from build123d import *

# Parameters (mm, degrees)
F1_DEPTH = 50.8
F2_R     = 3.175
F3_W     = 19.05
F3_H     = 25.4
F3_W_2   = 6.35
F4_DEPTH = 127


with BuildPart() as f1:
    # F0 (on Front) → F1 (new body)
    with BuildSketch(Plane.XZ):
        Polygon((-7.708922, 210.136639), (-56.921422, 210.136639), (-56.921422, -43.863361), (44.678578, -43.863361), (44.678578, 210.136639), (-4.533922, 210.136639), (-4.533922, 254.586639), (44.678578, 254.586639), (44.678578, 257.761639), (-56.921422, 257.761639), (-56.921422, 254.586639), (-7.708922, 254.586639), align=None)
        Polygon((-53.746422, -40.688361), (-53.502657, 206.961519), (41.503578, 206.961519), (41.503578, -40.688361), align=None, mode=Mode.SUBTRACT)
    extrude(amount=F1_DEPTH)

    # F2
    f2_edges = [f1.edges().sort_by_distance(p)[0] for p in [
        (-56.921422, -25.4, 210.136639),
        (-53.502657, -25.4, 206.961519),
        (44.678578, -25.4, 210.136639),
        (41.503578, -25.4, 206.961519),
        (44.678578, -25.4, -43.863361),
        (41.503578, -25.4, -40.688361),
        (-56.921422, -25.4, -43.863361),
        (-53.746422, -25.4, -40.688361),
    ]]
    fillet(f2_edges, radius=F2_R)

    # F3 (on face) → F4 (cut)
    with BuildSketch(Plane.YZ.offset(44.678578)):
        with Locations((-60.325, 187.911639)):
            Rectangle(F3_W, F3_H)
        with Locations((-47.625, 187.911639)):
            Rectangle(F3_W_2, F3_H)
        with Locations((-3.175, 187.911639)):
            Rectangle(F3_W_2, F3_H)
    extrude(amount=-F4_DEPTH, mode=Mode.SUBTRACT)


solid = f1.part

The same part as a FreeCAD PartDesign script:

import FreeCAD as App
import Part
import Sketcher

V = App.Vector
Q = App.Units.Quantity


def edges_at(feature, points):
    """Names of the edges that pass closest to the given points."""
    edges = feature.Shape.Edges
    near = lambda p: min(range(len(edges)), key=lambda i: edges[i].distToShape(Part.Vertex(*p))[0])
    return sorted({f"Edge{near(p) + 1}" for p in points})

doc = App.newDocument("Part")
body = doc.addObject("PartDesign::Body", "Body")

# Sketch on XZ plane
sketch1 = body.newObject("Sketcher::SketchObject", "Sketch")
sketch1.AttachmentSupport = (doc.getObject("XZ_Plane"), [""])
sketch1.MapMode = "FlatFace"
sketch1.addGeometry(Part.LineSegment(V(-7.7, 210.1, 0), V(-56.9, 210.1, 0)), False)
sketch1.addGeometry(Part.LineSegment(V(-56.9, 210.1, 0), V(-56.9, -43.9, 0)), False)
sketch1.addGeometry(Part.LineSegment(V(-56.9, -43.9, 0), V(44.7, -43.9, 0)), False)
sketch1.addGeometry(Part.LineSegment(V(44.7, -43.9, 0), V(44.7, 210.1, 0)), False)
sketch1.addGeometry(Part.LineSegment(V(44.7, 210.1, 0), V(-4.5, 210.1, 0)), False)
sketch1.addGeometry(Part.LineSegment(V(-4.5, 210.1, 0), V(-4.5, 254.6, 0)), False)
sketch1.addGeometry(Part.LineSegment(V(-4.5, 254.6, 0), V(44.7, 254.6, 0)), False)
sketch1.addGeometry(Part.LineSegment(V(44.7, 254.6, 0), V(44.7, 257.8, 0)), False)
sketch1.addGeometry(Part.LineSegment(V(44.7, 257.8, 0), V(-56.9, 257.8, 0)), False)
sketch1.addGeometry(Part.LineSegment(V(-56.9, 257.8, 0), V(-56.9, 254.6, 0)), False)
sketch1.addGeometry(Part.LineSegment(V(-56.9, 254.6, 0), V(-7.7, 254.6, 0)), False)
sketch1.addGeometry(Part.LineSegment(V(-7.7, 254.6, 0), V(-7.7, 210.1, 0)), False)
sketch1.addGeometry(Part.LineSegment(V(41.5, -40.7, 0), V(-53.7, -40.7, 0)), False)
sketch1.addGeometry(Part.LineSegment(V(-53.7, -40.7, 0), V(-53.5, 207, 0)), False)
sketch1.addGeometry(Part.LineSegment(V(-53.5, 207, 0), V(41.5, 207, 0)), False)
sketch1.addGeometry(Part.LineSegment(V(41.5, 207, 0), V(41.5, -40.7, 0)), False)
sketch1.addConstraint(Sketcher.Constraint("Coincident", 0, 2, 1, 1))
sketch1.addConstraint(Sketcher.Constraint("Coincident", 1, 2, 2, 1))
sketch1.addConstraint(Sketcher.Constraint("Coincident", 2, 2, 3, 1))
sketch1.addConstraint(Sketcher.Constraint("Coincident", 3, 2, 4, 1))
sketch1.addConstraint(Sketcher.Constraint("Coincident", 4, 2, 5, 1))
sketch1.addConstraint(Sketcher.Constraint("Coincident", 5, 2, 6, 1))
sketch1.addConstraint(Sketcher.Constraint("Coincident", 6, 2, 7, 1))
sketch1.addConstraint(Sketcher.Constraint("Coincident", 7, 2, 8, 1))
sketch1.addConstraint(Sketcher.Constraint("Coincident", 8, 2, 9, 1))
sketch1.addConstraint(Sketcher.Constraint("Coincident", 9, 2, 10, 1))
sketch1.addConstraint(Sketcher.Constraint("Coincident", 10, 2, 11, 1))
sketch1.addConstraint(Sketcher.Constraint("Coincident", 11, 2, 0, 1))
sketch1.addConstraint(Sketcher.Constraint("Coincident", 12, 2, 13, 1))
sketch1.addConstraint(Sketcher.Constraint("Coincident", 13, 2, 14, 1))
sketch1.addConstraint(Sketcher.Constraint("Coincident", 14, 2, 15, 1))
sketch1.addConstraint(Sketcher.Constraint("Coincident", 15, 2, 12, 1))
sketch1.addConstraint(Sketcher.Constraint("Horizontal", 0))
sketch1.addConstraint(Sketcher.Constraint("Vertical", 1))
sketch1.addConstraint(Sketcher.Constraint("Horizontal", 2))
sketch1.addConstraint(Sketcher.Constraint("Vertical", 3))
sketch1.addConstraint(Sketcher.Constraint("Horizontal", 4))
sketch1.addConstraint(Sketcher.Constraint("Vertical", 5))
sketch1.addConstraint(Sketcher.Constraint("Horizontal", 6))
sketch1.addConstraint(Sketcher.Constraint("Vertical", 7))
sketch1.addConstraint(Sketcher.Constraint("Horizontal", 8))
sketch1.addConstraint(Sketcher.Constraint("Vertical", 9))
sketch1.addConstraint(Sketcher.Constraint("Horizontal", 10))
sketch1.addConstraint(Sketcher.Constraint("Vertical", 11))
sketch1.addConstraint(Sketcher.Constraint("Horizontal", 12))
sketch1.addConstraint(Sketcher.Constraint("Horizontal", 14))
sketch1.addConstraint(Sketcher.Constraint("Vertical", 15))
sketch1.addConstraint(Sketcher.Constraint("Horizontal", 0, 2, 3, 2))
sketch1.addConstraint(Sketcher.Constraint("Horizontal", 6, 2, 9, 2))
sketch1.addConstraint(Sketcher.Constraint("Vertical", 3, 2, 6, 2))
sketch1.addConstraint(Sketcher.Constraint("Vertical", 1, 2, 8, 2))
sketch1.addConstraint(Sketcher.Constraint("Equal", 0, 4))
sketch1.addConstraint(Sketcher.Constraint("DistanceX", 2, 1, 2, 2, Q("4 in")))
sketch1.addConstraint(Sketcher.Constraint("DistanceY", 1, 2, 1, 1, Q("10 in")))
sketch1.addConstraint(Sketcher.Constraint("DistanceX", 12, 2, 12, 1, Q("3.75 in")))
sketch1.addConstraint(Sketcher.Constraint("DistanceY", 5, 1, 5, 2, Q("1.75 in")))
sketch1.addConstraint(Sketcher.Constraint("Distance", 13, Q("9.75 in")))
sketch1.addConstraint(Sketcher.Constraint("DistanceX", 0, 2, 0, 1, Q("1.9375 in")))
sketch1.addConstraint(Sketcher.Constraint("DistanceY", 7, 1, 7, 2, Q("0.125 in")))
sketch1.addConstraint(Sketcher.Constraint("DistanceX", 1, 2, 12, 2, Q("0.125 in")))
sketch1.addConstraint(Sketcher.Constraint("DistanceY", 1, 2, 12, 2, Q("0.125 in")))
sketch1.addConstraint(Sketcher.Constraint("DistanceX", 14, 1, 14, 2, 95.006235))
sketch1.addConstraint(Sketcher.Constraint("DistanceY", -1, 1, 0, 2, 210.136639))
sketch1.addConstraint(Sketcher.Constraint("DistanceX", -1, 1, 2, 2, 44.678578))
pad1 = body.newObject("PartDesign::Pad", "Pad")
pad1.Profile = sketch1
pad1.Length = Q("2 in")
doc.recompute()

fillet = body.newObject("PartDesign::Fillet", "Fillet")
fillet.Base = (pad1, edges_at(pad1, [
    (-56.921, -25.4, 210.137),
    (-53.503, -25.4, 206.962),
    (44.679, -25.4, 210.137),
    (41.504, -25.4, 206.962),
    (44.679, -25.4, -43.863),
    (41.504, -25.4, -40.688),
    (-56.921, -25.4, -43.863),
    (-53.746, -25.4, -40.688),
]))
fillet.Radius = Q("0.125 in")

# Sketch on YZ plane
sketch2 = body.newObject("Sketcher::SketchObject", "Sketch001")
sketch2.AttachmentSupport = (doc.getObject("YZ_Plane"), [""])
sketch2.MapMode = "FlatFace"
sketch2.AttachmentOffset = App.Placement(V(0, 0, 44.678578), App.Rotation())
sketch2.addGeometry(Part.LineSegment(V(-70, 201, 0), V(-70, 175, 0)), False)
sketch2.addGeometry(Part.LineSegment(V(-70, 175, 0), V(-44, 175, 0)), False)
sketch2.addGeometry(Part.LineSegment(V(-44, 175, 0), V(-44, 201, 0)), False)
sketch2.addGeometry(Part.LineSegment(V(-44, 201, 0), V(-70, 201, 0)), False)
sketch2.addGeometry(Part.LineSegment(V(-6, 201, 0), V(-6, 175, 0)), False)
sketch2.addGeometry(Part.LineSegment(V(-6, 175, 0), V(0, 175, 0)), False)
sketch2.addGeometry(Part.LineSegment(V(0, 175, 0), V(0, 201, 0)), False)
sketch2.addGeometry(Part.LineSegment(V(0, 201, 0), V(-6, 201, 0)), False)
sketch2.addConstraint(Sketcher.Constraint("Coincident", 0, 2, 1, 1))
sketch2.addConstraint(Sketcher.Constraint("Coincident", 1, 2, 2, 1))
sketch2.addConstraint(Sketcher.Constraint("Coincident", 2, 2, 3, 1))
sketch2.addConstraint(Sketcher.Constraint("Coincident", 3, 2, 0, 1))
sketch2.addConstraint(Sketcher.Constraint("Coincident", 4, 2, 5, 1))
sketch2.addConstraint(Sketcher.Constraint("Coincident", 5, 2, 6, 1))
sketch2.addConstraint(Sketcher.Constraint("Coincident", 6, 2, 7, 1))
sketch2.addConstraint(Sketcher.Constraint("Coincident", 7, 2, 4, 1))
sketch2.addConstraint(Sketcher.Constraint("Vertical", 0))
sketch2.addConstraint(Sketcher.Constraint("Horizontal", 1))
sketch2.addConstraint(Sketcher.Constraint("Vertical", 2))
sketch2.addConstraint(Sketcher.Constraint("Horizontal", 3))
sketch2.addConstraint(Sketcher.Constraint("Vertical", 4))
sketch2.addConstraint(Sketcher.Constraint("Horizontal", 5))
sketch2.addConstraint(Sketcher.Constraint("Vertical", 6))
sketch2.addConstraint(Sketcher.Constraint("Horizontal", 7))
sketch2.addConstraint(Sketcher.Constraint("PointOnObject", 5, 2, -2))
sketch2.addConstraint(Sketcher.Constraint("Horizontal", 1, 2, 4, 2))
sketch2.addConstraint(Sketcher.Constraint("Horizontal", 3, 2, 6, 2))
sketch2.addConstraint(Sketcher.Constraint("Equal", 3, 0))
sketch2.addConstraint(Sketcher.Constraint("DistanceX", 1, 1, 1, 2, Q("1 in")))
sketch2.addConstraint(Sketcher.Constraint("DistanceX", 5, 1, 5, 2, Q("0.25 in")))
sketch2.addConstraint(Sketcher.Constraint("DistanceX", 1, 2, 4, 2, Q("1.5 in")))
sketch2.addConstraint(Sketcher.Constraint("DistanceY", -1, 1, 0, 2, 175.211639))
pocket1 = body.newObject("PartDesign::Pocket", "Pocket")
pocket1.Profile = sketch2
pocket1.Length = Q("5 in")

doc.recompute()
